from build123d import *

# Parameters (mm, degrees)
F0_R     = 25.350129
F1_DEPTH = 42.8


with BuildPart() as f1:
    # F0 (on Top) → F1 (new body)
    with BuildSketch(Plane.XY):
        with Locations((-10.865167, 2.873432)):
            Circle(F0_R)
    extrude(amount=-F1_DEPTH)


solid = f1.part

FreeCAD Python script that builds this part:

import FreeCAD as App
import Part
import Sketcher

V = App.Vector

doc = App.newDocument("Part")
params = doc.addObject("Spreadsheet::Sheet", "Params")
for row, (alias, value) in enumerate([
    ("pad1_length", "42.8 mm"),
], start=1):
    params.set(f"A{row}", alias)
    params.set(f"B{row}", "=" + value)
    params.setAlias(f"B{row}", alias)

body = doc.addObject("PartDesign::Body", "Body")

sketch1 = body.newObject("Sketcher::SketchObject", "Sketch")
sketch1.AttachmentSupport = (doc.getObject("XY_Plane"), [""])
sketch1.MapMode = "FlatFace"
sketch1.addGeometry(Part.Circle(V(-11, 3, 0), V(0, 0, 1), 25), False)
sketch1.addConstraint(Sketcher.Constraint("Diameter", 0, 50.700258))
sketch1.addConstraint(Sketcher.Constraint("DistanceX", 0, 3, -1, 1, 10.865167))
sketch1.addConstraint(Sketcher.Constraint("DistanceY", -1, 1, 0, 3, 2.873432))
pad1 = body.newObject("PartDesign::Pad", "Pad")
pad1.Profile = sketch1
pad1.setExpression("Length", "Params.pad1_length")
pad1.Reversed = True

doc.recompute()
